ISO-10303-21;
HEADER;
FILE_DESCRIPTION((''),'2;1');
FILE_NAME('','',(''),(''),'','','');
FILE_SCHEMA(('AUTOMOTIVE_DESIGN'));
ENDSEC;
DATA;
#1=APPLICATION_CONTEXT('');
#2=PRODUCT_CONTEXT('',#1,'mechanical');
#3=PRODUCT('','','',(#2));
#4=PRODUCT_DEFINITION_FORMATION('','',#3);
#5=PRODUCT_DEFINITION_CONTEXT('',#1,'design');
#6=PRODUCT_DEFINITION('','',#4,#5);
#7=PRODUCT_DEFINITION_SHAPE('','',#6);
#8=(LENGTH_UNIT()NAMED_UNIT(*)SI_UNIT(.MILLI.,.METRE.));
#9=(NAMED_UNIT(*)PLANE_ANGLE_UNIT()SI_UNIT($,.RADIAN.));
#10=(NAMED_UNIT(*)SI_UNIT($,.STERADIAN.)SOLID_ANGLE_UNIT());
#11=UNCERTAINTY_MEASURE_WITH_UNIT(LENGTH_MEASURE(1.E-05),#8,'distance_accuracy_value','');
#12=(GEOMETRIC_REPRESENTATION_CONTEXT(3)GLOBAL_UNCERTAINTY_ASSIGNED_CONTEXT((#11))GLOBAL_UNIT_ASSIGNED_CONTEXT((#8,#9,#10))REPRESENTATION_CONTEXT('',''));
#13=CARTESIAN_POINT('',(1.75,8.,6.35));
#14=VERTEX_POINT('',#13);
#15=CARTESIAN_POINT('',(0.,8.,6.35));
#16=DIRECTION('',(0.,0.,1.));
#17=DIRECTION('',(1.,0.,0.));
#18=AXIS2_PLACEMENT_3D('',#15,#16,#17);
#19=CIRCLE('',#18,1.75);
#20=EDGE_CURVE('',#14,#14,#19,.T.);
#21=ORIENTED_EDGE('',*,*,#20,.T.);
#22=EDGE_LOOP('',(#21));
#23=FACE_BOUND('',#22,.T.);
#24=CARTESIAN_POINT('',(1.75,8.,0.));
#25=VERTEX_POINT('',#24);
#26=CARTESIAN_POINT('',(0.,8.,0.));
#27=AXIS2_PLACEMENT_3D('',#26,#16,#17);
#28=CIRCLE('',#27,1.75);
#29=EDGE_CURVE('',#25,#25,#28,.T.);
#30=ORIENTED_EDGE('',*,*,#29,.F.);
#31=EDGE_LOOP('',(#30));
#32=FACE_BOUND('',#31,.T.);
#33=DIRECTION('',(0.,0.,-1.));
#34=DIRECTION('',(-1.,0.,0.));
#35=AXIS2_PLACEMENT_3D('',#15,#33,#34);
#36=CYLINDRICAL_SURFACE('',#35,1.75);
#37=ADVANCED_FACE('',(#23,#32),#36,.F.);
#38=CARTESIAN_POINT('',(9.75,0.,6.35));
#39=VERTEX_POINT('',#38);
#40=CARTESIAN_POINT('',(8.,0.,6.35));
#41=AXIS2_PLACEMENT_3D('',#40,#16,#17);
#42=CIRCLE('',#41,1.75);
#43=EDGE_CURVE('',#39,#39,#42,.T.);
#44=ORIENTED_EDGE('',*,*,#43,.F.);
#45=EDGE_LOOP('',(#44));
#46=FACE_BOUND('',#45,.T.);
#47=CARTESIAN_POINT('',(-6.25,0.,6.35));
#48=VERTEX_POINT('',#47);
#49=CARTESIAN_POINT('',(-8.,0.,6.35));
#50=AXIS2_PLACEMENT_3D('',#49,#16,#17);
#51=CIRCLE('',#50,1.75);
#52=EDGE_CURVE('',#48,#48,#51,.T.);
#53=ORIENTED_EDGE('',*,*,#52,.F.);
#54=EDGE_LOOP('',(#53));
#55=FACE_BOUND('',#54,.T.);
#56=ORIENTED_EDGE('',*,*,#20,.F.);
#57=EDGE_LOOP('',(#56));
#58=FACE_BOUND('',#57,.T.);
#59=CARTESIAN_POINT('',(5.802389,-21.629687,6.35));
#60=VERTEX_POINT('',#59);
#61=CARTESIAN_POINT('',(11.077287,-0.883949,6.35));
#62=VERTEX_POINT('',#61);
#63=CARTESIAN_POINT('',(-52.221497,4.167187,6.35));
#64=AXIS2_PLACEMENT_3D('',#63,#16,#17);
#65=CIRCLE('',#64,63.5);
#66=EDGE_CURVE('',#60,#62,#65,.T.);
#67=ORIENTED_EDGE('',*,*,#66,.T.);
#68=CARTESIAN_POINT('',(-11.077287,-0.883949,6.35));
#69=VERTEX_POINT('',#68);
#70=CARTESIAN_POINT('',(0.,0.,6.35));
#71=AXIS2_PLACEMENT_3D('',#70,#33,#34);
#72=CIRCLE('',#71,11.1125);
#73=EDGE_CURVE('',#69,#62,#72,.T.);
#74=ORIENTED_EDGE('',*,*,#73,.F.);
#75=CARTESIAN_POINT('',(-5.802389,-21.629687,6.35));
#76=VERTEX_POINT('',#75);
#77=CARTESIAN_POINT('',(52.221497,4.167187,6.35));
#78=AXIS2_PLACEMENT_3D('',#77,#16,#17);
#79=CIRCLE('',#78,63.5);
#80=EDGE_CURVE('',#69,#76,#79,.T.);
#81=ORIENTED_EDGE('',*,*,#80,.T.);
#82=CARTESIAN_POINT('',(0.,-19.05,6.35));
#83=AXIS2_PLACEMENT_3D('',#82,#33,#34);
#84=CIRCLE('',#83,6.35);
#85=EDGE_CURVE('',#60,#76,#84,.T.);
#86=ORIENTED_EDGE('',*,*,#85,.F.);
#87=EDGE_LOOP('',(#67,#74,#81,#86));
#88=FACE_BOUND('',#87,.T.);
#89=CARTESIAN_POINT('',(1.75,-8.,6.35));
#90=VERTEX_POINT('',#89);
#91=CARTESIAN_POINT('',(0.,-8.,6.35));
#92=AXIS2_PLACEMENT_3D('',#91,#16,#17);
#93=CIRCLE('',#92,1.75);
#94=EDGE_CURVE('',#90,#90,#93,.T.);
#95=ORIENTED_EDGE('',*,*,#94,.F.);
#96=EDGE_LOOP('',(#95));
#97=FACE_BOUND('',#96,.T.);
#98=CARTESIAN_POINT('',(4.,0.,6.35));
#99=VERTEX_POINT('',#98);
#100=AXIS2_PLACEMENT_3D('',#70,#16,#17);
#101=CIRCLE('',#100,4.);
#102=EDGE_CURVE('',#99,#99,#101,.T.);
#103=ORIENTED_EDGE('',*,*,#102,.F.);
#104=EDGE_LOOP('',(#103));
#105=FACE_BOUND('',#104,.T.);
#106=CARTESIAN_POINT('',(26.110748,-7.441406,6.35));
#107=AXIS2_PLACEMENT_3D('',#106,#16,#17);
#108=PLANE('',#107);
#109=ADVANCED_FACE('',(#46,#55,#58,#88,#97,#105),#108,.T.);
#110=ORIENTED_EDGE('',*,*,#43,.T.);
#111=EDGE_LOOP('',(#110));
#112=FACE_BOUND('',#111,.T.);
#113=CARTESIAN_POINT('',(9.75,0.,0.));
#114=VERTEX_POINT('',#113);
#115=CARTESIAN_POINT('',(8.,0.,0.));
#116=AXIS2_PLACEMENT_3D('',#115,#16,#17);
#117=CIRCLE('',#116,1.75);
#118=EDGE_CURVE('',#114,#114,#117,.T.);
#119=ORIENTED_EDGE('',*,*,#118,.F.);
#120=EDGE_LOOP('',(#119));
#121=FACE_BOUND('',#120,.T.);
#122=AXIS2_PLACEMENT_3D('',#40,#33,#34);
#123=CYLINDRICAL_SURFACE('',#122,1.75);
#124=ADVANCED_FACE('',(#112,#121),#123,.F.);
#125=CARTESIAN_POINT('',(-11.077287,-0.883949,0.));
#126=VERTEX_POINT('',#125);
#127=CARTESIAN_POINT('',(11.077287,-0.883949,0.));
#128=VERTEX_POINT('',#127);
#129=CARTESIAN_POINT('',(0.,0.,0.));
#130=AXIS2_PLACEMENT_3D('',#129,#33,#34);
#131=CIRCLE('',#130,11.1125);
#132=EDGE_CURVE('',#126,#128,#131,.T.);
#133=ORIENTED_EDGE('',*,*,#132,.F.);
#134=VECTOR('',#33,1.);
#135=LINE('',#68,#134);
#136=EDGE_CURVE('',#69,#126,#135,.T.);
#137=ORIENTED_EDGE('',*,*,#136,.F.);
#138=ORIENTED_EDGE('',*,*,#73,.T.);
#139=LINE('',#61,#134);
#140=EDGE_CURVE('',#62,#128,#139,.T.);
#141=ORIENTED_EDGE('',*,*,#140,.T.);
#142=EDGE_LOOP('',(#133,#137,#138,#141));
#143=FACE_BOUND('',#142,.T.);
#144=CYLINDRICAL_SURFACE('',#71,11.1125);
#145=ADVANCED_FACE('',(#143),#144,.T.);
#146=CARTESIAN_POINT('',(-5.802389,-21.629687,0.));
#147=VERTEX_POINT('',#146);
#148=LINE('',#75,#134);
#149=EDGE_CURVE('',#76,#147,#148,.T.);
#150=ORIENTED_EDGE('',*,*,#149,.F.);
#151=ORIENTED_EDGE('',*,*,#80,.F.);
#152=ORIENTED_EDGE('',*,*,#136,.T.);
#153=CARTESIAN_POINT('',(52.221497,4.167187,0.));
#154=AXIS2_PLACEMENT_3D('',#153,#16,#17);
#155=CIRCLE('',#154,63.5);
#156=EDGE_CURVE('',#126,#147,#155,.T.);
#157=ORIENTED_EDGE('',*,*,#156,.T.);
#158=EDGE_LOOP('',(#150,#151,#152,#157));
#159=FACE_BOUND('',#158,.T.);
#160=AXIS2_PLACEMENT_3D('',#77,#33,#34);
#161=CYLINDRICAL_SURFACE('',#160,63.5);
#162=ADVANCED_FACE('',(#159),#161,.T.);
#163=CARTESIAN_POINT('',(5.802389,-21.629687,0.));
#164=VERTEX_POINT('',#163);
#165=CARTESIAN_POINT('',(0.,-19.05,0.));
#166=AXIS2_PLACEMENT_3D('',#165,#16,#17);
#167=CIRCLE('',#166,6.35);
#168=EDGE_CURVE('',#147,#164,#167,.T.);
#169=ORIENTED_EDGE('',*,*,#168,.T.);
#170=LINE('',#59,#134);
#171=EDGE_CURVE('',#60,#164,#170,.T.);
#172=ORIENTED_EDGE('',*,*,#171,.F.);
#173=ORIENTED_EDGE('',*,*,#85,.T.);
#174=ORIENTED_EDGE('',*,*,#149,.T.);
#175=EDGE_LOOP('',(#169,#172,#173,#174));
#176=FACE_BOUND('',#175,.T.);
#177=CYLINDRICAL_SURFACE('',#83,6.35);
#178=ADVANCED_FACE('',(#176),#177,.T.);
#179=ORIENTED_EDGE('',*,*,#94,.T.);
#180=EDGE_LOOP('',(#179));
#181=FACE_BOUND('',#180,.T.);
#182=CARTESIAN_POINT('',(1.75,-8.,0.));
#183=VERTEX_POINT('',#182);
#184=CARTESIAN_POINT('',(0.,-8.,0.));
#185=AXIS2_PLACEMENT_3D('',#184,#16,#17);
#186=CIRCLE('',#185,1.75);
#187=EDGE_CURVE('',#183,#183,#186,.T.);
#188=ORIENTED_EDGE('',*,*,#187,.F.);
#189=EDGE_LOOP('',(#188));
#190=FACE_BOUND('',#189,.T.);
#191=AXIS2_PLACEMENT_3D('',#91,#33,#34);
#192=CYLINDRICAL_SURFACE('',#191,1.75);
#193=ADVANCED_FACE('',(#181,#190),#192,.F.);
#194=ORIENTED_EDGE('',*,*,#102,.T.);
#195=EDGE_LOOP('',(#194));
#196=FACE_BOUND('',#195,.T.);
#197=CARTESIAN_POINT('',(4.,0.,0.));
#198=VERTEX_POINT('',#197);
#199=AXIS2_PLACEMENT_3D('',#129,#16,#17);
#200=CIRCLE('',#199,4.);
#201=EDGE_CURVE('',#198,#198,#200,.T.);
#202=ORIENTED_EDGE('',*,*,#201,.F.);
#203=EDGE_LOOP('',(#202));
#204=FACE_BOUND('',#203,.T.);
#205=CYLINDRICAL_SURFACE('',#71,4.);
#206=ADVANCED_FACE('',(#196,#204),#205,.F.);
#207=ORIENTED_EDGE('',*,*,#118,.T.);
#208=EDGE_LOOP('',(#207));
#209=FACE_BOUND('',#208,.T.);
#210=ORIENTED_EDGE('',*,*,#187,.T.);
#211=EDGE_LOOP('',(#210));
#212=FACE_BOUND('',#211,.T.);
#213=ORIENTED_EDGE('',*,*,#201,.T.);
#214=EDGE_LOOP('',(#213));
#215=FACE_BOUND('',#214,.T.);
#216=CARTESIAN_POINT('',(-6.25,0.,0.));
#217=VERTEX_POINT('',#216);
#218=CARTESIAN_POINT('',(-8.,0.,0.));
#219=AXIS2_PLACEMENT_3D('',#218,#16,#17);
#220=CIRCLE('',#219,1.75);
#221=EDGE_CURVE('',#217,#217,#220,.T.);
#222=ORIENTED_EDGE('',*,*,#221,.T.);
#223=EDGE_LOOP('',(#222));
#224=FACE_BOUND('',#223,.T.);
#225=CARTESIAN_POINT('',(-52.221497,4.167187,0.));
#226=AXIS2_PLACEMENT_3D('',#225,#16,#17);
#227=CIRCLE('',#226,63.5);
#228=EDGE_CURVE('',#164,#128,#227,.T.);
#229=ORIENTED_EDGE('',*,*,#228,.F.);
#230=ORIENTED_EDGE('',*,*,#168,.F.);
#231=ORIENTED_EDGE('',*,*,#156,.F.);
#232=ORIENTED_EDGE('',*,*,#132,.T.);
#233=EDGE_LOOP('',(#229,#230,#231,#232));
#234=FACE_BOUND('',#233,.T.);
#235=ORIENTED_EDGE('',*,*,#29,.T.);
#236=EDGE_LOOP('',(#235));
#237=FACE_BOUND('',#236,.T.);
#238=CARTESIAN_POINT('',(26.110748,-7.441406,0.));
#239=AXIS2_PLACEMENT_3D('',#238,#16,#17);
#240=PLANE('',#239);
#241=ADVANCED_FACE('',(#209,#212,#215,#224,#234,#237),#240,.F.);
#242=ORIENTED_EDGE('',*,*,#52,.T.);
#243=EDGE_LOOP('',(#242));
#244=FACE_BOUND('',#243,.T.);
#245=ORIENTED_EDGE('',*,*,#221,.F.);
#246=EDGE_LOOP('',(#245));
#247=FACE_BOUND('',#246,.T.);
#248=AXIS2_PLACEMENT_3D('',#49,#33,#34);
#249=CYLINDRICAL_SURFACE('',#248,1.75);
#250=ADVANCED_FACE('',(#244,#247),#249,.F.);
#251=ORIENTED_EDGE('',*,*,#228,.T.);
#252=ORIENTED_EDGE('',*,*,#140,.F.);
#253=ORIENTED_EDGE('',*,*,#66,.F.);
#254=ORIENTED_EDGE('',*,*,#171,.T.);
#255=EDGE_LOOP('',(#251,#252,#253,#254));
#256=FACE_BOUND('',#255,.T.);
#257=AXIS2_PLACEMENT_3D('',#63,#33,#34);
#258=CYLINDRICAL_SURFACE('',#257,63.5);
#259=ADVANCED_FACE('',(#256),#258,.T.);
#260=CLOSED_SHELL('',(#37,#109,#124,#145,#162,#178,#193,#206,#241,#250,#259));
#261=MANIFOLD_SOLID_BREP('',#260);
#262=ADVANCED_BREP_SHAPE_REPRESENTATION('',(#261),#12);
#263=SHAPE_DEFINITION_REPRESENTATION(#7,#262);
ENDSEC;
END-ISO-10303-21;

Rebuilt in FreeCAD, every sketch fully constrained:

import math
import FreeCAD as App
import Part
import Sketcher
from FreeCAD import Vector
Q = App.Units.Quantity

doc = App.newDocument("Part")
params = doc.addObject("Spreadsheet::Sheet", "Params")
for row, (alias, value) in enumerate([
    ("sketch1_radius", "2.5 in"),
    ("sketch1_radius2", "0.25 in"),
    ("sketch1_radius3", "0.4375 in"),
    ("pad1_length", "0.25 in"),
], start=1):
    params.set(f"A{row}", alias)
    params.set(f"B{row}", "=" + value)
    params.setAlias(f"B{row}", alias)

body = doc.addObject("PartDesign::Body", "Body")

sketch1 = body.newObject("Sketcher::SketchObject", "Sketch")
sketch1.AttachmentSupport = (doc.getObject("XY_Plane"), [""])
sketch1.MapMode = "FlatFace"
sketch1.addGeometry([
    Part.ArcOfCircle(Part.Circle(Vector(0, 0, 0), Vector(0, 0, 1), 11.1), math.radians(-5), math.radians(185)),
    Part.ArcOfCircle(Part.Circle(Vector(52.2, 4.2, 0), Vector(0, 0, 1), 63.5), math.radians(-175.44), math.radians(-156.03)),
    Part.ArcOfCircle(Part.Circle(Vector(0, -19, 0), Vector(0, 0, 1), 6.4), math.radians(-156), math.radians(-90)),
    Part.ArcOfCircle(Part.Circle(Vector(0, -19, 0), Vector(0, 0, 1), 6.4), math.radians(-90), math.radians(-24)),
    Part.ArcOfCircle(Part.Circle(Vector(-52.2, 4.2, 0), Vector(0, 0, 1), 63.5), math.radians(-23.97), math.radians(-4.56)),
    Part.Circle(Vector(0, -8, 0), Vector(0, 0, 1), 1.8),
    Part.Circle(Vector(8, 0, 0), Vector(0, 0, 1), 1.8),
    Part.Circle(Vector(0, 0, 0), Vector(0, 0, 1), 4),
    Part.Circle(Vector(-8, 0, 0), Vector(0, 0, 1), 1.8),
    Part.Circle(Vector(0, 8, 0), Vector(0, 0, 1), 1.8),
], False)
sketch1.addConstraint([
    Sketcher.Constraint("Tangent", 0, 2, 1, 1),
    Sketcher.Constraint("Tangent", 1, 2, 2, 1),
    Sketcher.Constraint("Tangent", 2, 2, 3, 1),
    Sketcher.Constraint("Tangent", 3, 2, 4, 1),
    Sketcher.Constraint("Tangent", 4, 2, 0, 1),
    Sketcher.Constraint("Coincident", 0, 3, -1, 1),
    Sketcher.Constraint("Coincident", 7, 3, -1, 1),
    Sketcher.Constraint("Equal", 2, 3),
    Sketcher.Constraint("Equal", 1, 4),
    Sketcher.Constraint("Equal", 5, 6),
    Sketcher.Constraint("Equal", 6, 8),
    Sketcher.Constraint("Equal", 8, 9),
    Sketcher.Constraint("Symmetric", 6, 3, 8, 3, -1, 1),
    Sketcher.Constraint("Symmetric", 5, 3, 9, 3, -1, 1),
    Sketcher.Constraint("PointOnObject", 2, 3, -2),
    Sketcher.Constraint("PointOnObject", 5, 3, -2),
    Sketcher.Constraint("PointOnObject", 6, 3, -1),
    Sketcher.Constraint("PointOnObject", 2, 2, -2),
    Sketcher.Constraint("Radius", 1, Q("2.5 in")),
    Sketcher.Constraint("Radius", 2, Q("0.25 in")),
    Sketcher.Constraint("DistanceY", 2, 2, -1, 1, Q("1 in")),
    Sketcher.Constraint("Radius", 0, Q("0.4375 in")),
    Sketcher.Constraint("Diameter", 5, 3.5),
    Sketcher.Constraint("Diameter", 7, 8.0),
    Sketcher.Constraint("DistanceY", 5, 3, -1, 1, 8.0),
    Sketcher.Constraint("DistanceX", -1, 1, 6, 3, 8.0),
])
sketch1.setExpression("Constraints[18]", "Params.sketch1_radius")
sketch1.setExpression("Constraints[19]", "Params.sketch1_radius2")
sketch1.setExpression("Constraints[21]", "Params.sketch1_radius3")
pad1 = body.newObject("PartDesign::Pad", "Pad")
pad1.Profile = sketch1
pad1.setExpression("Length", "Params.pad1_length")

doc.recompute()
